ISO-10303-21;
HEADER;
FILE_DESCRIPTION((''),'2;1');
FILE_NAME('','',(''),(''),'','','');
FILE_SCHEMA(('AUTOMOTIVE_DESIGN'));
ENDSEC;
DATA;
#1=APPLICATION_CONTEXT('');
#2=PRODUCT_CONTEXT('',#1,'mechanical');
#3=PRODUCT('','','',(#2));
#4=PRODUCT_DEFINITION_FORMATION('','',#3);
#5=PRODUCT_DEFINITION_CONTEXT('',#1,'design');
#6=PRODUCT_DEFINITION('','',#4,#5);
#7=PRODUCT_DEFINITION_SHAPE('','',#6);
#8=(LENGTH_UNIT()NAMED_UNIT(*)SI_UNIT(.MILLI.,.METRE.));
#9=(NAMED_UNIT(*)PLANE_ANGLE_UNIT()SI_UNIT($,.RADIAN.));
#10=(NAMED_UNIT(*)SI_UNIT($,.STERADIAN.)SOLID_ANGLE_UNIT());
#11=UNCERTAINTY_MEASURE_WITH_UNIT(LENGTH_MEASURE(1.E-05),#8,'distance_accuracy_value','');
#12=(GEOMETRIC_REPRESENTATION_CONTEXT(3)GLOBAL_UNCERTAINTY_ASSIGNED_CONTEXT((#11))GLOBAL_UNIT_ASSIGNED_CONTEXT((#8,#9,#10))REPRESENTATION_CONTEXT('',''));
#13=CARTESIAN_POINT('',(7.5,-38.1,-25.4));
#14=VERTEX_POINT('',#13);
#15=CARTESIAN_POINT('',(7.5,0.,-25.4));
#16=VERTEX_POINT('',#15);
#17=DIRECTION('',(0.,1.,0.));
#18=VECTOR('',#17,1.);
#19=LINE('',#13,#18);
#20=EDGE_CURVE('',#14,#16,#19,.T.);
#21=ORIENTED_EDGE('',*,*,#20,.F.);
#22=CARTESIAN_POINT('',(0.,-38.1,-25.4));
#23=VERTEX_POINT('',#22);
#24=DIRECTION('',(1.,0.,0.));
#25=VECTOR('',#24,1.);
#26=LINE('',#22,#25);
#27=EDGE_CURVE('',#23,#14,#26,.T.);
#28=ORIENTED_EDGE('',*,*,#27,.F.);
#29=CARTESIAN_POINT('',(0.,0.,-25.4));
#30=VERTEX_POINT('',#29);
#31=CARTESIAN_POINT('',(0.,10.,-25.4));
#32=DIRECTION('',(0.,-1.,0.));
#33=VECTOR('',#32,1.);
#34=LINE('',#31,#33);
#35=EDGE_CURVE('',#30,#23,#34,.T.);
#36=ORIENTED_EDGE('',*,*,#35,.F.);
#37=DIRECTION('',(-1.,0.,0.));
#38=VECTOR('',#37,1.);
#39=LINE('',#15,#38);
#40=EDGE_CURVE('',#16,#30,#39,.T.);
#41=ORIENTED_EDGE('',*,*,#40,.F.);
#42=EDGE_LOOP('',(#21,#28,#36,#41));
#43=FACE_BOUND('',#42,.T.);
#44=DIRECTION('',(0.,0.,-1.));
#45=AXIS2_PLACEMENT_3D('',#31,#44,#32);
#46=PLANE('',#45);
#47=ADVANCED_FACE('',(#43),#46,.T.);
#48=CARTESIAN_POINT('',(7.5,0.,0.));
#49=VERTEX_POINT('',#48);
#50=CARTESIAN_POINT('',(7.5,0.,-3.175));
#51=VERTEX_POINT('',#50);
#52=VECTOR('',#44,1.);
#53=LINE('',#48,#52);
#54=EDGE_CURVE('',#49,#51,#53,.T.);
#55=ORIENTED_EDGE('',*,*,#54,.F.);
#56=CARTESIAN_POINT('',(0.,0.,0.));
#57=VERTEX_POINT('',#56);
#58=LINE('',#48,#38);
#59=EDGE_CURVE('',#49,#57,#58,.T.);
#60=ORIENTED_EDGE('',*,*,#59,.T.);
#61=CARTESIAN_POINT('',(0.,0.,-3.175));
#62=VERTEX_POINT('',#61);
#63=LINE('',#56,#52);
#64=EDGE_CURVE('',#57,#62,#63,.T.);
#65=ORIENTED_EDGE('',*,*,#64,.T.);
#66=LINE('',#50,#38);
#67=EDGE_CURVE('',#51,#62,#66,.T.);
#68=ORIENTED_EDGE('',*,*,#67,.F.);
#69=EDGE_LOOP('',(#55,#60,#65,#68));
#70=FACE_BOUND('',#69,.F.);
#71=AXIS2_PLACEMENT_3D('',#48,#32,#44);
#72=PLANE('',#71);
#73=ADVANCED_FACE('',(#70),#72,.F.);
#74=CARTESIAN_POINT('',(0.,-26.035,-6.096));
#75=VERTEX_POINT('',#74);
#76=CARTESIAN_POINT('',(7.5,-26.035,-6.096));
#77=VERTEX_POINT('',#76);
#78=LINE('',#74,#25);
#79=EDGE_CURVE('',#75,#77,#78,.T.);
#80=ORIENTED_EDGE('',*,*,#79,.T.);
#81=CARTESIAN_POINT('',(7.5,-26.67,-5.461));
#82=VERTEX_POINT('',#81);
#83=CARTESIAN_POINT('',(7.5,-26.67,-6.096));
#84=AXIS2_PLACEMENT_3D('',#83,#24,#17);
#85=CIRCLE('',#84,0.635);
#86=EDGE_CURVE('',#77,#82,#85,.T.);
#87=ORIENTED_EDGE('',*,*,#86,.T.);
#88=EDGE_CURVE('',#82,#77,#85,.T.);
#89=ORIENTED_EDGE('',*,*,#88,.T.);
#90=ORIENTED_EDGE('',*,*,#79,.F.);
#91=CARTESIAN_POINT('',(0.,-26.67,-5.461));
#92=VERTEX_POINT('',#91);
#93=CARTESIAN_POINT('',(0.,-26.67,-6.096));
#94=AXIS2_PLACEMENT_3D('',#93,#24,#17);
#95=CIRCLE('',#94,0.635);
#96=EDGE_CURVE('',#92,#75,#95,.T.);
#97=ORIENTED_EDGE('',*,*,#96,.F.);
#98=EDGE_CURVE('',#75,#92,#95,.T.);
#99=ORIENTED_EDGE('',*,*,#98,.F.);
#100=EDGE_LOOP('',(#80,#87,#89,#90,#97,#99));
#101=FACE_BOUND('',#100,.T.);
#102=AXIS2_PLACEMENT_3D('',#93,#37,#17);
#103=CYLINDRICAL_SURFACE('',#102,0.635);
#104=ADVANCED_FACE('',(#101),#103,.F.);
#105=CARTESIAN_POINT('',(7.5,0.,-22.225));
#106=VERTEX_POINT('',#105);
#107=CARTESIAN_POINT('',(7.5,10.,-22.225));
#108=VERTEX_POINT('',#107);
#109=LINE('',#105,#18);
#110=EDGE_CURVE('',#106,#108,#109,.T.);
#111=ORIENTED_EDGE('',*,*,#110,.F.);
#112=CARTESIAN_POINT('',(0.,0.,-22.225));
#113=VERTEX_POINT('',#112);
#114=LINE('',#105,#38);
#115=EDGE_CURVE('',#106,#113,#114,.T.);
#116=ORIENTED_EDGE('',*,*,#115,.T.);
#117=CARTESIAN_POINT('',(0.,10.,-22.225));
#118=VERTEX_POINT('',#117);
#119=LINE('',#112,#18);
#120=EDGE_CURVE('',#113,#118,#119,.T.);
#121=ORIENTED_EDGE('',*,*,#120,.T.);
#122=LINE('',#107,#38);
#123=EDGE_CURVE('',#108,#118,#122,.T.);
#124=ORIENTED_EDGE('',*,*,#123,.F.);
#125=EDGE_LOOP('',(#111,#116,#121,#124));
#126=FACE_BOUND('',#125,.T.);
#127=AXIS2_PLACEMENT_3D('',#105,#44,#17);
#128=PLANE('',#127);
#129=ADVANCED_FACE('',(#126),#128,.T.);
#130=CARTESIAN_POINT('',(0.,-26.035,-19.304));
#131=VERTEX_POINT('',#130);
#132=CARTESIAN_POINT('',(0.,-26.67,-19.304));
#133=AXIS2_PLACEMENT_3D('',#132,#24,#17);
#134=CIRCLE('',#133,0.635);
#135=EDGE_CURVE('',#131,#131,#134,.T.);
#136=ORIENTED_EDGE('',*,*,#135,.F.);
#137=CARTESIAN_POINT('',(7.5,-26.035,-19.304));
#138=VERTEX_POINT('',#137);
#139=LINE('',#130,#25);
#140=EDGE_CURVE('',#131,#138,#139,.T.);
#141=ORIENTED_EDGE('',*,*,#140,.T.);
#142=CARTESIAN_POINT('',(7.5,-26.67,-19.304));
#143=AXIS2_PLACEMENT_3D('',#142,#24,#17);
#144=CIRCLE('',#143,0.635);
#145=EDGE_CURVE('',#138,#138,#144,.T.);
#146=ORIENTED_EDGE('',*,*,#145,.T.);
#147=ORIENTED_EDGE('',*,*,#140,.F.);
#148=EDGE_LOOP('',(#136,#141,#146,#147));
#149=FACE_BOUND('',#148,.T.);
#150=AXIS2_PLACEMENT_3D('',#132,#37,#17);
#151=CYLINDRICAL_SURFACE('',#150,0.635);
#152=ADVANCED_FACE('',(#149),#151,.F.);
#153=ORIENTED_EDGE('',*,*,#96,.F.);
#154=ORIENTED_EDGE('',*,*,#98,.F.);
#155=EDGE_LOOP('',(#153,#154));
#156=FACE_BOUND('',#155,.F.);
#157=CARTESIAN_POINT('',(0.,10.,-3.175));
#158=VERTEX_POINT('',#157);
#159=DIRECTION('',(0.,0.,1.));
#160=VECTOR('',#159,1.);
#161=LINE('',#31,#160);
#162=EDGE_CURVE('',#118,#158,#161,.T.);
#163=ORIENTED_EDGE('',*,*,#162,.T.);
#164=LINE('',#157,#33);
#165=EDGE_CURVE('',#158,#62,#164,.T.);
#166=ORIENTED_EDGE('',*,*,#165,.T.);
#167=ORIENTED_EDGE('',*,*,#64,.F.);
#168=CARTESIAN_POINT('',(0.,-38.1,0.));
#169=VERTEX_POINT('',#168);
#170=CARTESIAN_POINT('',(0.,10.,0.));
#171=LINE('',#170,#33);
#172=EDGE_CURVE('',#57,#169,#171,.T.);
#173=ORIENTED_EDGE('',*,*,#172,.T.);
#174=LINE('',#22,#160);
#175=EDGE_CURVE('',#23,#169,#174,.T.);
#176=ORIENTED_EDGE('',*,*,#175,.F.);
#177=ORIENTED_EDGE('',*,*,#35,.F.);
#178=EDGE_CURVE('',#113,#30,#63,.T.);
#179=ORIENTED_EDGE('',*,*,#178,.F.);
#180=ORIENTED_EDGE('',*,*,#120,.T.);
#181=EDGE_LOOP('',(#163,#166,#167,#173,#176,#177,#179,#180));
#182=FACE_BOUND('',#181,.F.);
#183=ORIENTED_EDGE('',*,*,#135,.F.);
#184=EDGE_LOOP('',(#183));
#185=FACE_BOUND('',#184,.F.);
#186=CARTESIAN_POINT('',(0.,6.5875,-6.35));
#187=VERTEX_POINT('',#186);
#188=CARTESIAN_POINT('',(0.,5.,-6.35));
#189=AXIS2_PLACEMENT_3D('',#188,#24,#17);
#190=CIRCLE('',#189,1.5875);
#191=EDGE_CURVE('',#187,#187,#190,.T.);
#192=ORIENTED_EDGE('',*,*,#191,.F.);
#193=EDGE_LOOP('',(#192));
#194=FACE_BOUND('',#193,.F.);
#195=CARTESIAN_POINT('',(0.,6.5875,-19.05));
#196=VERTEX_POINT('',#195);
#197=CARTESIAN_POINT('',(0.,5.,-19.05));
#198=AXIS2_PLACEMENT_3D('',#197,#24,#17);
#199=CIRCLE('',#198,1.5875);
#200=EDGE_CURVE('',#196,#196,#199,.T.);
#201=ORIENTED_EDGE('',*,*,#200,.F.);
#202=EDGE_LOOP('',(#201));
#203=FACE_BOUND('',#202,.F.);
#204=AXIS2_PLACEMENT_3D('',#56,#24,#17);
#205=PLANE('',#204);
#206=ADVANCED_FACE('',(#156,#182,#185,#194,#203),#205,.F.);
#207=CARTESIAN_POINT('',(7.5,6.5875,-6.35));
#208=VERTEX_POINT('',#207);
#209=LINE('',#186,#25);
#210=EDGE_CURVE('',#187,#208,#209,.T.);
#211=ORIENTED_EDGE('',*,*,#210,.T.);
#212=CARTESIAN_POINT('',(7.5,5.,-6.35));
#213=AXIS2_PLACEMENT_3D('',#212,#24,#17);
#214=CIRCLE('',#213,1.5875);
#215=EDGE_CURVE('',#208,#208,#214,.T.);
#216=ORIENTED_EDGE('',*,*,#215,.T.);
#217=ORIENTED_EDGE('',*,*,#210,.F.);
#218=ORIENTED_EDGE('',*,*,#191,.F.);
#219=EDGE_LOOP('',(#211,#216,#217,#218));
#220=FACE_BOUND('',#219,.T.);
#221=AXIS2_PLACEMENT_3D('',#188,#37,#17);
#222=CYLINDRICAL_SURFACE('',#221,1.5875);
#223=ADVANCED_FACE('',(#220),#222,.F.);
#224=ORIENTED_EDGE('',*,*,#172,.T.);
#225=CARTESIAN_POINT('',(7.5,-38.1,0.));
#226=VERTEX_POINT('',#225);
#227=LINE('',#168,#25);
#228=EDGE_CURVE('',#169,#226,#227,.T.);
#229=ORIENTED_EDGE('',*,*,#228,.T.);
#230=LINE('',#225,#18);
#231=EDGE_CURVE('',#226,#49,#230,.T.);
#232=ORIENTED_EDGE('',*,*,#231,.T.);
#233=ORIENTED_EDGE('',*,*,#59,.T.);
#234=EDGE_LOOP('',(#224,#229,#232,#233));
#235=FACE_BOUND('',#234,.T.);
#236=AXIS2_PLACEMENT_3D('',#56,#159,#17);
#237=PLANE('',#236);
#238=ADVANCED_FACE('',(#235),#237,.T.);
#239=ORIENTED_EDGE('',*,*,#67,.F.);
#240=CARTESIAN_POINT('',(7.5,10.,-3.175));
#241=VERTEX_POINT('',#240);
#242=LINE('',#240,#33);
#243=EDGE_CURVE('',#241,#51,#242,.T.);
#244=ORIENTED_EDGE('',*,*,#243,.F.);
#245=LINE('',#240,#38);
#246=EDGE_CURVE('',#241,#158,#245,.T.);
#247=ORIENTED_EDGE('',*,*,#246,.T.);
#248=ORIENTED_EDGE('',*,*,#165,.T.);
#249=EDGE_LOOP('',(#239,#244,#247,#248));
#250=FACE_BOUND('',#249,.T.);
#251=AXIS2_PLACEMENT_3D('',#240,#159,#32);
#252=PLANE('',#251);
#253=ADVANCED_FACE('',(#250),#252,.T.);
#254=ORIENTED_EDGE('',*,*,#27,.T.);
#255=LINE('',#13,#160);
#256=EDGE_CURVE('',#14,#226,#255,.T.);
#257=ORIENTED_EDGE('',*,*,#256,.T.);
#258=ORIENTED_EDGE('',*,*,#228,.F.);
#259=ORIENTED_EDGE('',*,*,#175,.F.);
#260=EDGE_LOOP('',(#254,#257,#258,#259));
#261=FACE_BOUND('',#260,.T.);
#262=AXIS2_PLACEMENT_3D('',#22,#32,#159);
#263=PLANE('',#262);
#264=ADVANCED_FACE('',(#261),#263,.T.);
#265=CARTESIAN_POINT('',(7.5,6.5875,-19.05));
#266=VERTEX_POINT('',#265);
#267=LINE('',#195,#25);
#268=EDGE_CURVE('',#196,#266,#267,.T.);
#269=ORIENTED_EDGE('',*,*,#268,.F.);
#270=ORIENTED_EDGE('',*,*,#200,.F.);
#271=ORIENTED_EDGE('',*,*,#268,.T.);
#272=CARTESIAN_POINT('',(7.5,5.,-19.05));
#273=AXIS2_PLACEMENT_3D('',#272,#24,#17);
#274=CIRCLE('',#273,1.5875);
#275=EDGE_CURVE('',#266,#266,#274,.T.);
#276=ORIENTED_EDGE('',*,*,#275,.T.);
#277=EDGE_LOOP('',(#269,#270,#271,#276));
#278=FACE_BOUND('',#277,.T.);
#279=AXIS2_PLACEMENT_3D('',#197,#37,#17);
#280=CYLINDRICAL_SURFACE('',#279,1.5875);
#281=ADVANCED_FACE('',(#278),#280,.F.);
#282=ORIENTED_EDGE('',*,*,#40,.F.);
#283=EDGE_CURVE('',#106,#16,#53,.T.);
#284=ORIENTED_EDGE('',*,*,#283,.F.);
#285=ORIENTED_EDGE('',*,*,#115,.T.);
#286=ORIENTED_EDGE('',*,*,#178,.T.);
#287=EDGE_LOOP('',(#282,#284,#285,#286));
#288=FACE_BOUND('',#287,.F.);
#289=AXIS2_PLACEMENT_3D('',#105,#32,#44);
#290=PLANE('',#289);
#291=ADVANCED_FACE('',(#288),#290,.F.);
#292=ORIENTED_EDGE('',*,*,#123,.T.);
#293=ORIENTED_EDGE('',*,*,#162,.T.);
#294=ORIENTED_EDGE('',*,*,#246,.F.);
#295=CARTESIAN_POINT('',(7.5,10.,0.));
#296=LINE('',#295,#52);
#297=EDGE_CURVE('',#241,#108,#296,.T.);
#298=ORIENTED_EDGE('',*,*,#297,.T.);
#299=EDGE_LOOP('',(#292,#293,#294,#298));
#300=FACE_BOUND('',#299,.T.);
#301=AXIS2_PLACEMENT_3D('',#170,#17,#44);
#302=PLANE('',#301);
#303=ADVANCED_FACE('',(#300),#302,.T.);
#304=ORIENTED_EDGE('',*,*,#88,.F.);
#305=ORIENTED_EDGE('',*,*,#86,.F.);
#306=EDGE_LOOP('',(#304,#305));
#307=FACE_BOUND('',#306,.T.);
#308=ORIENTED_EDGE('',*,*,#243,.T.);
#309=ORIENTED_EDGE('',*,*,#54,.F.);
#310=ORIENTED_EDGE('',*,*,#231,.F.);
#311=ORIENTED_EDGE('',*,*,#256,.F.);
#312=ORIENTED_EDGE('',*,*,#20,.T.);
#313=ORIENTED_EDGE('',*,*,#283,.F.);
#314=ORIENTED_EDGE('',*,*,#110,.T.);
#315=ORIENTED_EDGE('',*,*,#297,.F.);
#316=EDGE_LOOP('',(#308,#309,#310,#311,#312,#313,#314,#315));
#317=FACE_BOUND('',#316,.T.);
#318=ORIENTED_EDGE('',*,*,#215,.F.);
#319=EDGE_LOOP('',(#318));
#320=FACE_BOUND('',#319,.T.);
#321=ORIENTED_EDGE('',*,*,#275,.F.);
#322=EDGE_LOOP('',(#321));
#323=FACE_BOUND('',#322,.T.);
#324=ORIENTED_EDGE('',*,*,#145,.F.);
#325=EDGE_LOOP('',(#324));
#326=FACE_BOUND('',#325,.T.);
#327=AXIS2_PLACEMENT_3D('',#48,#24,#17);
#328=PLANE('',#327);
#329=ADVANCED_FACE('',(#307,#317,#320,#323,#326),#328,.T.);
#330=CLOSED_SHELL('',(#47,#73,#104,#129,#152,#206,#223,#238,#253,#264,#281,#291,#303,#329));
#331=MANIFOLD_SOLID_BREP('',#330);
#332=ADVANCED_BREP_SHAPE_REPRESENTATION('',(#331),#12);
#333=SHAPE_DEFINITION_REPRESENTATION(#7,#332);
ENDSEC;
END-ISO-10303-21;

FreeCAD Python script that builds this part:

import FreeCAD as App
import Part
import Sketcher
Q = App.Units.Quantity


def add_polygon(sketch, points):
    """Adds a closed chain of lines whose ends are joined by coincident constraints."""
    first, n = sketch.GeometryCount, len(points)
    for a, b in zip(points, points[1:] + points[:1]):
        sketch.addGeometry(Part.LineSegment(App.Vector(*a, 0), App.Vector(*b, 0)), False)
    for i in range(n):
        sketch.addConstraint(Sketcher.Constraint("Coincident", first + i, 2, first + (i + 1) % n, 1))

doc = App.newDocument("Part")
body = doc.addObject("PartDesign::Body", "Body")

sketch1 = doc.addObject("Sketcher::SketchObject", "Sketch")
body.addObject(sketch1)
sketch1.AttachmentSupport = (doc.YZ_Plane, [""])
sketch1.MapMode = "FlatFace"
add_polygon(sketch1, [(10, 0), (-38.1, 0), (-38.1, -25.4), (10, -25.4)])
sketch1.addGeometry(Part.Circle(App.Vector(5, -19.1, 0), App.Vector(0, 0, 1), 1.6), False)
sketch1.addGeometry(Part.Circle(App.Vector(5, -6.3, 0), App.Vector(0, 0, 1), 1.6), False)
sketch1.addGeometry(Part.Circle(App.Vector(-26.7, -6.1, 0), App.Vector(0, 0, 1), 0.6), False)
sketch1.addGeometry(Part.Circle(App.Vector(-26.7, -19.3, 0), App.Vector(0, 0, 1), 0.6), False)
sketch1.addConstraint(Sketcher.Constraint("Horizontal", 0))
sketch1.addConstraint(Sketcher.Constraint("Vertical", 1))
sketch1.addConstraint(Sketcher.Constraint("Horizontal", 2))
sketch1.addConstraint(Sketcher.Constraint("Vertical", 3))
sketch1.addConstraint(Sketcher.Constraint("Equal", 4, 5))
sketch1.addConstraint(Sketcher.Constraint("Equal", 6, 7))
sketch1.addConstraint(Sketcher.Constraint("PointOnObject", 0, 2, -1))
sketch1.addConstraint(Sketcher.Constraint("Vertical", 4, 3, 5, 3))
sketch1.addConstraint(Sketcher.Constraint("Vertical", 6, 3, 7, 3))
sketch1.addConstraint(Sketcher.Constraint("Diameter", 6, Q("0.05 in")))
sketch1.addConstraint(Sketcher.Constraint("DistanceY", 1, 2, 1, 1, Q("1 in")))
sketch1.addConstraint(Sketcher.Constraint("Diameter", 4, Q("0.125 in")))
sketch1.addConstraint(Sketcher.Constraint("DistanceY", 4, 3, -1, 1, Q("0.75 in")))
sketch1.addConstraint(Sketcher.Constraint("DistanceY", 5, 3, -1, 1, Q("0.25 in")))
sketch1.addConstraint(Sketcher.Constraint("DistanceX", -1, 1, 2, 2, Q("0.3937 in")))
sketch1.addConstraint(Sketcher.Constraint("DistanceX", 0, 2, -1, 1, Q("1.5 in")))
sketch1.addConstraint(Sketcher.Constraint("DistanceX", 6, 3, -1, 1, Q("1.05 in")))
sketch1.addConstraint(Sketcher.Constraint("DistanceY", 6, 3, -1, 1, Q("0.24 in")))
sketch1.addConstraint(Sketcher.Constraint("DistanceY", 7, 3, -1, 1, Q("0.76 in")))
sketch1.addConstraint(Sketcher.Constraint("DistanceX", -1, 1, 4, 3, Q("5 mm")))
pad1 = doc.addObject("PartDesign::Pad", "Pad")
body.addObject(pad1)
pad1.Profile = sketch1
pad1.Length = 7.5

sketch2 = doc.addObject("Sketcher::SketchObject", "Sketch001")
body.addObject(sketch2)
sketch2.AttachmentSupport = (doc.YZ_Plane, [""])
sketch2.MapMode = "FlatFace"
sketch2.AttachmentOffset = App.Placement(App.Vector(0, 0, 7.5), App.Rotation())
add_polygon(sketch2, [(0, -22.2), (0, -25.4), (10, -25.4), (10, -22.2)])
add_polygon(sketch2, [(10, 0), (0, 0), (0, -3.2), (10, -3.2)])
sketch2.addConstraint(Sketcher.Constraint("Vertical", 0))
sketch2.addConstraint(Sketcher.Constraint("Horizontal", 1))
sketch2.addConstraint(Sketcher.Constraint("Vertical", 2))
sketch2.addConstraint(Sketcher.Constraint("Horizontal", 3))
sketch2.addConstraint(Sketcher.Constraint("Horizontal", 4))
sketch2.addConstraint(Sketcher.Constraint("Vertical", 5))
sketch2.addConstraint(Sketcher.Constraint("Horizontal", 6))
sketch2.addConstraint(Sketcher.Constraint("Vertical", 7))
sketch2.addConstraint(Sketcher.Constraint("Coincident", 4, 2, -1, 1))
sketch2.addConstraint(Sketcher.Constraint("PointOnObject", 0, 2, -2))
sketch2.addConstraint(Sketcher.Constraint("Vertical", 2, 2, 6, 2))
sketch2.addConstraint(Sketcher.Constraint("Equal", 2, 5))
sketch2.addConstraint(Sketcher.Constraint("DistanceY", 3, 2, 5, 2, Q("0.75 in")))
sketch2.addConstraint(Sketcher.Constraint("DistanceY", 0, 2, -1, 1, Q("1 in")))
sketch2.addConstraint(Sketcher.Constraint("DistanceX", 1, 1, 1, 2, Q("0.3937 in")))
pocket1 = doc.addObject("PartDesign::Pocket", "Pocket")
body.addObject(pocket1)
pocket1.Profile = sketch2
pocket1.Length = 7.5

doc.recompute()
